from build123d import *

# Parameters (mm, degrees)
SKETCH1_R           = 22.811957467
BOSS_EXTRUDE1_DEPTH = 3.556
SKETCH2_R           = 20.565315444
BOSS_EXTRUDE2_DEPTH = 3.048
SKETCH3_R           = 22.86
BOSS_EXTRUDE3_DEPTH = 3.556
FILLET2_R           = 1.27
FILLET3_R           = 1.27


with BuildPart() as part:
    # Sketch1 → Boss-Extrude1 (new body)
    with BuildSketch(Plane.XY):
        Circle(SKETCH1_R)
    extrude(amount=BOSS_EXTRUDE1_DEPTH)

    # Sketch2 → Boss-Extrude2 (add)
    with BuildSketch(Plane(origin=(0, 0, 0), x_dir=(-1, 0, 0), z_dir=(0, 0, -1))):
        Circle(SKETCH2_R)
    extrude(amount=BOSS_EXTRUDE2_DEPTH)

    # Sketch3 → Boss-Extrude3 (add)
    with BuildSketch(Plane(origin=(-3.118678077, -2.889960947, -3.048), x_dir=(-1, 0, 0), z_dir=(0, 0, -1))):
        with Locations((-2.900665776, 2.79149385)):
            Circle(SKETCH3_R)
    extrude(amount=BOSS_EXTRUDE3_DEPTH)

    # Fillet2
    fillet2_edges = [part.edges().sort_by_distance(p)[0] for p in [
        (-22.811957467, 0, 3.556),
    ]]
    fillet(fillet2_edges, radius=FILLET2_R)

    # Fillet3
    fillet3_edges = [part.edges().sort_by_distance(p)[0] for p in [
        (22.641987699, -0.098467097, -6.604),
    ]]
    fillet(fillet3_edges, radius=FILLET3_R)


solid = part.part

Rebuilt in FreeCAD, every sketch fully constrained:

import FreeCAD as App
import Part
import Sketcher
Q = App.Units.Quantity


def edges_at(feature, points):
    """Names of the edges that pass closest to the given points."""
    edges = feature.Shape.Edges
    near = lambda p: min(range(len(edges)), key=lambda i: edges[i].distToShape(Part.Vertex(*p))[0])
    return sorted({f"Edge{near(p) + 1}" for p in points})

doc = App.newDocument("Part")
params = doc.addObject("Spreadsheet::Sheet", "Params")
for row, (alias, value) in enumerate([
    ("pad1_length", "0.14 in"),
    ("pad2_length", "0.12 in"),
    ("sketch3_diameter", "1.8 in"),
    ("pad3_length", "0.14 in"),
    ("fillet_radius", "0.05 in"),
    ("fillet2_radius", "0.05 in"),
], start=1):
    params.set(f"A{row}", alias)
    params.set(f"B{row}", "=" + value)
    params.setAlias(f"B{row}", alias)

body = doc.addObject("PartDesign::Body", "Body")

sketch1 = body.newObject("Sketcher::SketchObject", "Sketch")
sketch1.AttachmentSupport = (doc.getObject("XY_Plane"), [""])
sketch1.MapMode = "FlatFace"
sketch1.addGeometry(Part.Circle(App.Vector(0, 0, 0), App.Vector(0, 0, 1), 23), False)
sketch1.addConstraint([
    Sketcher.Constraint("Coincident", 0, 3, -1, 1),
    Sketcher.Constraint("Diameter", 0, 45.623915),
])
pad1 = body.newObject("PartDesign::Pad", "Pad")
pad1.Profile = sketch1
pad1.setExpression("Length", "Params.pad1_length")

sketch2 = body.newObject("Sketcher::SketchObject", "Sketch001")
sketch2.AttachmentSupport = (doc.getObject("XY_Plane"), [""])
sketch2.MapMode = "FlatFace"
sketch2.addGeometry(Part.Circle(App.Vector(0, 0, 0), App.Vector(0, 0, 1), 21), False)
sketch2.addConstraint([
    Sketcher.Constraint("Coincident", 0, 3, -1, 1),
    Sketcher.Constraint("Diameter", 0, 41.130631),
])
pad2 = body.newObject("PartDesign::Pad", "Pad001")
pad2.Profile = sketch2
pad2.setExpression("Length", "Params.pad2_length")
pad2.Reversed = True

sketch3 = body.newObject("Sketcher::SketchObject", "Sketch002")
sketch3.AttachmentSupport = (doc.getObject("XY_Plane"), [""])
sketch3.MapMode = "FlatFace"
sketch3.AttachmentOffset = App.Placement(App.Vector(0, 0, -0.12 * 25.4), App.Rotation())
sketch3.addGeometry(Part.Circle(App.Vector(0, 0, 0), App.Vector(0, 0, 1), 23), False)
sketch3.addConstraint([
    Sketcher.Constraint("Diameter", 0, Q("1.8 in")),
    Sketcher.Constraint("DistanceX", 0, 3, -1, 1, 0.218012),
    Sketcher.Constraint("DistanceY", 0, 3, -1, 1, 0.098467),
])
sketch3.setExpression("Constraints[0]", "Params.sketch3_diameter")
pad3 = body.newObject("PartDesign::Pad", "Pad002")
pad3.Profile = sketch3
pad3.setExpression("Length", "Params.pad3_length")
pad3.Reversed = True
doc.recompute()

fillet = body.newObject("PartDesign::Fillet", "Fillet")
fillet.Base = (pad3, edges_at(pad3, [(-22.812, 0, 3.556)]))
fillet.setExpression("Radius", "Params.fillet_radius")
doc.recompute()

fillet2 = body.newObject("PartDesign::Fillet", "Fillet001")
fillet2.Base = (fillet, edges_at(fillet, [(22.642, -0.098, -6.604)]))
fillet2.setExpression("Radius", "Params.fillet2_radius")

doc.recompute()
